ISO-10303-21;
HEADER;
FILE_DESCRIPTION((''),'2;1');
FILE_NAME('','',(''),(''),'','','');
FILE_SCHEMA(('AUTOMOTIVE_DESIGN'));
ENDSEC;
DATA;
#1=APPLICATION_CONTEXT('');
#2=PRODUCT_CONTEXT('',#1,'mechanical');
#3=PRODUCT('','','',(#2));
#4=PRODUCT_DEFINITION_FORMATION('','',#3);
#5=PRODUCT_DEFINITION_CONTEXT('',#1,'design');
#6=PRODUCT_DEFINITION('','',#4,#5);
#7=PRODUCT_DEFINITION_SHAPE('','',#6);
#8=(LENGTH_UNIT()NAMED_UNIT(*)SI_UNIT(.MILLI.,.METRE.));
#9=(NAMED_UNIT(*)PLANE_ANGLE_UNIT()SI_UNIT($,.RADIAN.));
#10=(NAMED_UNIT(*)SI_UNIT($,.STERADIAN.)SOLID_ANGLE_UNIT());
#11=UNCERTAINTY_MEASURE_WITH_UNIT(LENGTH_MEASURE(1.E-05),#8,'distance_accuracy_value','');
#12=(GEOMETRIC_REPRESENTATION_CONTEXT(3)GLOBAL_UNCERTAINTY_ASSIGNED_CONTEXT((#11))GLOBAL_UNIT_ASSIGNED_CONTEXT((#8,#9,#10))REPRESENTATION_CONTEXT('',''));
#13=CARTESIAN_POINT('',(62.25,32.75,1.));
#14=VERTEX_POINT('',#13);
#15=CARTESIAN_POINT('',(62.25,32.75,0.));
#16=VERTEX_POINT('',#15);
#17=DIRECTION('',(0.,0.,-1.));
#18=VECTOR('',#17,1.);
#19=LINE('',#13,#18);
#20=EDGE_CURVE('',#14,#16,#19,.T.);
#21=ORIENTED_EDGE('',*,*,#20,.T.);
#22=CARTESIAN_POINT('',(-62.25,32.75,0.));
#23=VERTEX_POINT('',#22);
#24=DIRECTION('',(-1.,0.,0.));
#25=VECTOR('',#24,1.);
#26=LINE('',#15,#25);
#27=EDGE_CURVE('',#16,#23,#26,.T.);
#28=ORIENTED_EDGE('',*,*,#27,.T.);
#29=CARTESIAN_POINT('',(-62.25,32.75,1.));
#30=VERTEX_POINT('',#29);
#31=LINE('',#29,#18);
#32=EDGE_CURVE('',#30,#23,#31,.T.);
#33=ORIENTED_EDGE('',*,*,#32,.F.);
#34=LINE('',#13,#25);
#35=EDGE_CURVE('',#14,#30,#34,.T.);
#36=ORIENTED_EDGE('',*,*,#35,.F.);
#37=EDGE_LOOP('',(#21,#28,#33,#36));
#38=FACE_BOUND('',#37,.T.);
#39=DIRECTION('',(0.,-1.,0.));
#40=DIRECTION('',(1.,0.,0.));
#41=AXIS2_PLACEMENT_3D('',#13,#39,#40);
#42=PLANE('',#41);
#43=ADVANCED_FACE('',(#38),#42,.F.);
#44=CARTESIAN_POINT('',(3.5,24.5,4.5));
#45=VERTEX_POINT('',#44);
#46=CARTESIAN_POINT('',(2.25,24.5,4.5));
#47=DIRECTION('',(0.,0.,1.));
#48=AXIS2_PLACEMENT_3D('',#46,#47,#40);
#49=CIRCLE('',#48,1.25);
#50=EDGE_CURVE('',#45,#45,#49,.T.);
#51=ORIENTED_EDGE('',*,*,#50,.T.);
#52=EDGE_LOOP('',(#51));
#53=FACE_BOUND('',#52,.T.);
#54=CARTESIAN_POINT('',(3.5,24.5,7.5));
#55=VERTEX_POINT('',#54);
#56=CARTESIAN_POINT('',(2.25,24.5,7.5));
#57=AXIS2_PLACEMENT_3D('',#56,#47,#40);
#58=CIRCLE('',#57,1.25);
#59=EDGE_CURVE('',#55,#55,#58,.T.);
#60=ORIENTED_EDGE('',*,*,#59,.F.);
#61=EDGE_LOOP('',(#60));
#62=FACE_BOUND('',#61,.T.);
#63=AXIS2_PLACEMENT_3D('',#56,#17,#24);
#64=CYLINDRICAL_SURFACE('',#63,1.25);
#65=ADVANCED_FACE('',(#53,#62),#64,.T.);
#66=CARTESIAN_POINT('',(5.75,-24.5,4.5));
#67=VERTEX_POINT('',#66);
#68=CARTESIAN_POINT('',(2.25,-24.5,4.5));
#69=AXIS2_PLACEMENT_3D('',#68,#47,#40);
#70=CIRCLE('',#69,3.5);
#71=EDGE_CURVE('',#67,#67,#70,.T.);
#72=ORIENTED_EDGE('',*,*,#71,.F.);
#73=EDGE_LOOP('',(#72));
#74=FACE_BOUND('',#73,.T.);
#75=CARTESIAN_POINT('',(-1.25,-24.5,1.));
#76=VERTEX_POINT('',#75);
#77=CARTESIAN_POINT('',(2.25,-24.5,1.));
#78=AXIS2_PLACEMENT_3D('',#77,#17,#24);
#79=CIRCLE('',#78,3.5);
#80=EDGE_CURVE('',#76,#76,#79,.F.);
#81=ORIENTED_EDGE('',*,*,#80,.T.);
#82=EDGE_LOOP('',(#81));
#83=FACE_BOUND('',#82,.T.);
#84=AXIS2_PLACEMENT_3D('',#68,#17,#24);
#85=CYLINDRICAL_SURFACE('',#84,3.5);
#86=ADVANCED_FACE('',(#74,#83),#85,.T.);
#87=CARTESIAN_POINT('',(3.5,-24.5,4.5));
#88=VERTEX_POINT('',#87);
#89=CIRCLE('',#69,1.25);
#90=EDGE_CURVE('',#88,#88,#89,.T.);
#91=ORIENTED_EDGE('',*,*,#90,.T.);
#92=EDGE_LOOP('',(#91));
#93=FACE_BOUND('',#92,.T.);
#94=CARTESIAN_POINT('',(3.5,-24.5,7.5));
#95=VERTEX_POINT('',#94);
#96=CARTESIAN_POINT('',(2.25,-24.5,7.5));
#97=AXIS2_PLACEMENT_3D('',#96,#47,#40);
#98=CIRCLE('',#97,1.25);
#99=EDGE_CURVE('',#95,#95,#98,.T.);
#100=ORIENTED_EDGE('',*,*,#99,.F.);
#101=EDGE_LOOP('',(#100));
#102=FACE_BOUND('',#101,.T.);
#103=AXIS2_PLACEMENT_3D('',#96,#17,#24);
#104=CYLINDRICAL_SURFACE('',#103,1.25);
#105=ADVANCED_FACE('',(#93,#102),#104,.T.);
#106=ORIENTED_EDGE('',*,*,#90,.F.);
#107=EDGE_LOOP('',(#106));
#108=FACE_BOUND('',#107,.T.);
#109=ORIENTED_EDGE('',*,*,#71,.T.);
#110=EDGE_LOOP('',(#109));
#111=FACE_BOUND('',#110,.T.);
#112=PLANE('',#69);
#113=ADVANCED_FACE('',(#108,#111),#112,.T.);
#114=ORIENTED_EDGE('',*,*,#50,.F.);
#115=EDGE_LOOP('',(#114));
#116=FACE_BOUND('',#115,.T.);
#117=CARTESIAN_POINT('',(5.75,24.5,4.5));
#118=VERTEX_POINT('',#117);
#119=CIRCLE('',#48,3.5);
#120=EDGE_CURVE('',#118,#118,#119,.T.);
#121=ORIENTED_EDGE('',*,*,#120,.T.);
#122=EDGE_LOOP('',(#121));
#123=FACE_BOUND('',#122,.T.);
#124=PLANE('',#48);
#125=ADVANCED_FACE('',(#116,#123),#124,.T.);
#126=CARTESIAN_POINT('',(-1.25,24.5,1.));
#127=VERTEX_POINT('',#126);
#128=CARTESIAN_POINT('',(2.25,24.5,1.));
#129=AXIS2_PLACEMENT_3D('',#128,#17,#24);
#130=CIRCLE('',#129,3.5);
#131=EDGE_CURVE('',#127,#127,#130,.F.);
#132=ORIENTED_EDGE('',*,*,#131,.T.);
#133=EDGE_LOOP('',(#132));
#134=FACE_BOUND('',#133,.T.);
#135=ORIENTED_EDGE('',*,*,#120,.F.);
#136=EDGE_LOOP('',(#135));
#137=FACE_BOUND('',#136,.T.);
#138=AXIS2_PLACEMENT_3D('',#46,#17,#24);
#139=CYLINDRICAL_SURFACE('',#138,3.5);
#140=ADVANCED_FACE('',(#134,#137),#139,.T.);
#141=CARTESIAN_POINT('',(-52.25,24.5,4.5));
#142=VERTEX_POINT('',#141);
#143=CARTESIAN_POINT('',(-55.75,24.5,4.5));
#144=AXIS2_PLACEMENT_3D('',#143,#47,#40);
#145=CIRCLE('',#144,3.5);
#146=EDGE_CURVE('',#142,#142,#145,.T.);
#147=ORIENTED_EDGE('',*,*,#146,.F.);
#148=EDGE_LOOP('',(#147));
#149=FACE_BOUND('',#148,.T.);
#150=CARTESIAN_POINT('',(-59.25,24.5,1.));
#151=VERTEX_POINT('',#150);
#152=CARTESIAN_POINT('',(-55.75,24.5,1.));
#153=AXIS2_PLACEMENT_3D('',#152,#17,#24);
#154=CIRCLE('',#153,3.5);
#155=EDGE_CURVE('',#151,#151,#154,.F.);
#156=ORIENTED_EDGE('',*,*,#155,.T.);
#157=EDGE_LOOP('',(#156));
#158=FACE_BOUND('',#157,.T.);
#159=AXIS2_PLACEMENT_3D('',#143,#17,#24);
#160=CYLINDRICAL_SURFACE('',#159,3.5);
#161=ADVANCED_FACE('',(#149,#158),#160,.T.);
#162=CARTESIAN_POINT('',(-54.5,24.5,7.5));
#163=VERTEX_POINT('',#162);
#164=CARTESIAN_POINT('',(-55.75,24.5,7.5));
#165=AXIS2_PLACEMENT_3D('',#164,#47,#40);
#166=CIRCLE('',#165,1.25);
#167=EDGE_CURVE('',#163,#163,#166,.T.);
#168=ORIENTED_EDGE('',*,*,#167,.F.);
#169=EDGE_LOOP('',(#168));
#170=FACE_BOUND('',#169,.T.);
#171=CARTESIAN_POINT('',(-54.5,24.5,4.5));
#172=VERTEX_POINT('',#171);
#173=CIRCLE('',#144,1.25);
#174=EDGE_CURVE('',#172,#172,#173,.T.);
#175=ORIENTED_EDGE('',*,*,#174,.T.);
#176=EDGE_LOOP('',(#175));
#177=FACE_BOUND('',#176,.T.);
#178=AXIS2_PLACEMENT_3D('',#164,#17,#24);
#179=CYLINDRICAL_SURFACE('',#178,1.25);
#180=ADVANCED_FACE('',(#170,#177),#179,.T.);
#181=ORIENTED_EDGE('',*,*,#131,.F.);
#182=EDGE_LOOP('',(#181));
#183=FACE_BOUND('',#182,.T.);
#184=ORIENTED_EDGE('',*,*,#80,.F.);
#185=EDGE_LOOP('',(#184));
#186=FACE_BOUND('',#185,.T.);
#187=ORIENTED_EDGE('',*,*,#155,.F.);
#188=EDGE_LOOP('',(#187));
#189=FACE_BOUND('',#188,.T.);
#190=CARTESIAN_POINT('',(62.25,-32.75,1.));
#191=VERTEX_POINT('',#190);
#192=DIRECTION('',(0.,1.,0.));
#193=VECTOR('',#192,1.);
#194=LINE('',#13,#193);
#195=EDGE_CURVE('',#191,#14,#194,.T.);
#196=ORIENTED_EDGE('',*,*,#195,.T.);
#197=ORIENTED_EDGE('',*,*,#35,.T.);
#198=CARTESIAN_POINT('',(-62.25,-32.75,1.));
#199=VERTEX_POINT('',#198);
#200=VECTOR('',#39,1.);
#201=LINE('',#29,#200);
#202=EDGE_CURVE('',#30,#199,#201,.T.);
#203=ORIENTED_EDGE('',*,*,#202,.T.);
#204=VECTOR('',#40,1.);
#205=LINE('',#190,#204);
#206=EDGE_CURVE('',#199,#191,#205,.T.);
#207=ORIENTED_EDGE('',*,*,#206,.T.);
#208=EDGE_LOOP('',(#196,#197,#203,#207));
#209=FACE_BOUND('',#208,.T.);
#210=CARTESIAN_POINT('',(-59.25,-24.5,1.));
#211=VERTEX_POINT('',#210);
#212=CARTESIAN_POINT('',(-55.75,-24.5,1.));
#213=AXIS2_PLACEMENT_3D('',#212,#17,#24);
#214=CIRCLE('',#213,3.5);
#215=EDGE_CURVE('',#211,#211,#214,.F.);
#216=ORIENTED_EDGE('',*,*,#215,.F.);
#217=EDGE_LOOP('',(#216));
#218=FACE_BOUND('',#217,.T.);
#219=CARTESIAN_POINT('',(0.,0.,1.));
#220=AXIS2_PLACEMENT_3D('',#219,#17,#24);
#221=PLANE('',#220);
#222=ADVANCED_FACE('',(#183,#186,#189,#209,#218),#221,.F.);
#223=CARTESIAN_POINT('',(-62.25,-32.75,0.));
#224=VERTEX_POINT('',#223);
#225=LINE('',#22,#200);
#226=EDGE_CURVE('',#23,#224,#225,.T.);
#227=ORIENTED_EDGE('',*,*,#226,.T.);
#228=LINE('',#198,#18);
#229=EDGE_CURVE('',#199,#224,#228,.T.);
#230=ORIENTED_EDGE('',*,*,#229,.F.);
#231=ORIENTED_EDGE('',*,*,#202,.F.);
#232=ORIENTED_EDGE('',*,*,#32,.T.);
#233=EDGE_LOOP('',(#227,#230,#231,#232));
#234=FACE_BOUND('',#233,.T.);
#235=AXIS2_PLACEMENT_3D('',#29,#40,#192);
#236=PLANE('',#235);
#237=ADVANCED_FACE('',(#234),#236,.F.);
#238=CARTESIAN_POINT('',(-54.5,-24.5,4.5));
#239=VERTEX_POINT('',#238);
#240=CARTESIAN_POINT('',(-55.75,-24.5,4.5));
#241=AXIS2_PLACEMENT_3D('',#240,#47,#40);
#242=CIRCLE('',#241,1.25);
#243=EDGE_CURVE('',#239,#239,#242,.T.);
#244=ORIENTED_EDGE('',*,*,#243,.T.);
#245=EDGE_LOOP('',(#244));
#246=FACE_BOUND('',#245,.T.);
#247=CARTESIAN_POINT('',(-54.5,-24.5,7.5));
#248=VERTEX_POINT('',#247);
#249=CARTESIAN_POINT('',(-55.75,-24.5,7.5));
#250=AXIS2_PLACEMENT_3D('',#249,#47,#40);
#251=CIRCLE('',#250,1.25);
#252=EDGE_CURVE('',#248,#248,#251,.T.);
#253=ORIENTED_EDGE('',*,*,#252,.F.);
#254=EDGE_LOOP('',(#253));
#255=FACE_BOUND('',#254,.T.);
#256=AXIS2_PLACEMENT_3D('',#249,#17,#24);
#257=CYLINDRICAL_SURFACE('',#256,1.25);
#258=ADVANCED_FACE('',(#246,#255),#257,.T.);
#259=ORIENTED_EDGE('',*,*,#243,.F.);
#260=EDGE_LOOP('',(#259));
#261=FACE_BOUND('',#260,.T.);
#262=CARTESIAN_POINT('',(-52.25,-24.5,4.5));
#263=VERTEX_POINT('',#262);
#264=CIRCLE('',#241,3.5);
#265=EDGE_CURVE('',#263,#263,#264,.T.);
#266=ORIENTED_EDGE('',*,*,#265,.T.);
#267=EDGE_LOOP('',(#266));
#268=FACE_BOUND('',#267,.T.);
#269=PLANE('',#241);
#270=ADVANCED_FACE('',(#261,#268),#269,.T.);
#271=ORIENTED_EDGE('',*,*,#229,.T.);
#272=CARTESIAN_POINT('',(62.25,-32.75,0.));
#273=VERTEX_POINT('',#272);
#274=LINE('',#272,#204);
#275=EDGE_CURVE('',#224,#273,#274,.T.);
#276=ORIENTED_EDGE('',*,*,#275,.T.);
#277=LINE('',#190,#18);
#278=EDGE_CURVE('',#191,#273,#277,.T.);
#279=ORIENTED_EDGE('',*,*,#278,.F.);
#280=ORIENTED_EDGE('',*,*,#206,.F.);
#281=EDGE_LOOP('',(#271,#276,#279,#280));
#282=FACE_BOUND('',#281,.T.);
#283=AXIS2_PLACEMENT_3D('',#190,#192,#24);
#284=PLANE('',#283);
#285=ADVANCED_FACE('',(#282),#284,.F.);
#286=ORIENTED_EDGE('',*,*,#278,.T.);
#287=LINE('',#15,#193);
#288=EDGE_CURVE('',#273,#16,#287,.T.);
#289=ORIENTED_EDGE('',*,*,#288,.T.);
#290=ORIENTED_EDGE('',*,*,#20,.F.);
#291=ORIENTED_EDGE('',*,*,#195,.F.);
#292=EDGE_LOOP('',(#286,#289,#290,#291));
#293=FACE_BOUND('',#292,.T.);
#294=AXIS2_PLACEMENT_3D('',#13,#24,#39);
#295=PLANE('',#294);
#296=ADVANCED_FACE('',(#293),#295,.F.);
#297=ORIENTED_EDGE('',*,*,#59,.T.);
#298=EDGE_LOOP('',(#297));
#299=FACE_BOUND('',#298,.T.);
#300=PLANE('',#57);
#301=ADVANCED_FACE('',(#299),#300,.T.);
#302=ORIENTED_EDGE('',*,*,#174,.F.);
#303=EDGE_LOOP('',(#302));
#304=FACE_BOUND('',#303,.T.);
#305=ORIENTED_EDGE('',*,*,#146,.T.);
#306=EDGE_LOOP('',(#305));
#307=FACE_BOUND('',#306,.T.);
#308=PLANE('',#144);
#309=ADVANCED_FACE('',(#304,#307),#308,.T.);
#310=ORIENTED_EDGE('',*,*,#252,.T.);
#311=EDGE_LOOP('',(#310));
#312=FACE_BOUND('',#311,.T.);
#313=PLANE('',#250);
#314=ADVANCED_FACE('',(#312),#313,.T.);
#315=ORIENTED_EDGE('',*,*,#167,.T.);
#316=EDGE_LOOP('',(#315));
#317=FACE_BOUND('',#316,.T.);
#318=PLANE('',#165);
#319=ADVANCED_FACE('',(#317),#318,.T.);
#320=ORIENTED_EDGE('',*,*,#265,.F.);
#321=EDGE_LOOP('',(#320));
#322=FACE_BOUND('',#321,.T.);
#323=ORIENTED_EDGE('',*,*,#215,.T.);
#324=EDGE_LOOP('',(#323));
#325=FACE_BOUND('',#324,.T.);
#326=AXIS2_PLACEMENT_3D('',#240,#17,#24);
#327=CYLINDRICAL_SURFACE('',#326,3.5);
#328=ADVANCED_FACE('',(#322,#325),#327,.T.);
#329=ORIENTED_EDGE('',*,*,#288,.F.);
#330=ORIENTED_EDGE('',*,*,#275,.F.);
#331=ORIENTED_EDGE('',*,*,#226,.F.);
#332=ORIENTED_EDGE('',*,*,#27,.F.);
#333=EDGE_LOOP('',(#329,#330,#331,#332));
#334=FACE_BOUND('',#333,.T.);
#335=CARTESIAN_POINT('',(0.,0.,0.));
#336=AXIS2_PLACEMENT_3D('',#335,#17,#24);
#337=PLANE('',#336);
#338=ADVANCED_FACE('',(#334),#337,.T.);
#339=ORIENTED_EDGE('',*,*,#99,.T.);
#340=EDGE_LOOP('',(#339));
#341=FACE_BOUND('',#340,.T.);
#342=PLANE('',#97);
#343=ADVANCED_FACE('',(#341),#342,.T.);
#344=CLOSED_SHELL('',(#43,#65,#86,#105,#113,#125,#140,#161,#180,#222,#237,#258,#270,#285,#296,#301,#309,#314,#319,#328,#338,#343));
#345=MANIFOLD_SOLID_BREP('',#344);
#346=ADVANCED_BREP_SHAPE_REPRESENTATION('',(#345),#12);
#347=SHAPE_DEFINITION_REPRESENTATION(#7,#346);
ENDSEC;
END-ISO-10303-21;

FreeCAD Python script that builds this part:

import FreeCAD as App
import Part
import Sketcher
Q = App.Units.Quantity

doc = App.newDocument("Part")
body = doc.addObject("PartDesign::Body", "Body")

# Sketch on XY plane
sketch1 = doc.addObject("Sketcher::SketchObject", "Sketch")
body.addObject(sketch1)
sketch1.AttachmentSupport = (doc.XY_Plane, [""])
sketch1.MapMode = "FlatFace"
sketch1.addGeometry(Part.LineSegment(App.Vector(-62, 33, 0), App.Vector(-62, -33, 0)), False)
sketch1.addGeometry(Part.LineSegment(App.Vector(-62, -33, 0), App.Vector(62, -33, 0)), False)
sketch1.addGeometry(Part.LineSegment(App.Vector(62, -33, 0), App.Vector(62, 33, 0)), False)
sketch1.addGeometry(Part.LineSegment(App.Vector(62, 33, 0), App.Vector(-62, 33, 0)), False)
sketch1.addConstraint(Sketcher.Constraint("Coincident", 0, 2, 1, 1))
sketch1.addConstraint(Sketcher.Constraint("Coincident", 1, 2, 2, 1))
sketch1.addConstraint(Sketcher.Constraint("Coincident", 2, 2, 3, 1))
sketch1.addConstraint(Sketcher.Constraint("Coincident", 3, 2, 0, 1))
sketch1.addConstraint(Sketcher.Constraint("Vertical", 0))
sketch1.addConstraint(Sketcher.Constraint("Horizontal", 1))
sketch1.addConstraint(Sketcher.Constraint("Vertical", 2))
sketch1.addConstraint(Sketcher.Constraint("Horizontal", 3))
sketch1.addConstraint(Sketcher.Constraint("Symmetric", 0, 2, 2, 2, -1, 1))
sketch1.addConstraint(Sketcher.Constraint("DistanceX", 1, 1, 1, 2, Q("124.5 mm")))
sketch1.addConstraint(Sketcher.Constraint("DistanceY", 0, 2, 0, 1, Q("65.5 mm")))
pad1 = doc.addObject("PartDesign::Pad", "Pad")
body.addObject(pad1)
pad1.Profile = sketch1
pad1.Length = 1

# Sketch on XY plane
sketch2 = doc.addObject("Sketcher::SketchObject", "Sketch001")
body.addObject(sketch2)
sketch2.AttachmentSupport = (doc.XY_Plane, [""])
sketch2.MapMode = "FlatFace"
sketch2.AttachmentOffset = App.Placement(App.Vector(0, 0, 1), App.Rotation())
sketch2.addGeometry(Part.Circle(App.Vector(-55.8, 24.5, 0), App.Vector(0, 0, 1), 3.5), False)
sketch2.addGeometry(Part.Circle(App.Vector(2.2, 24.5, 0), App.Vector(0, 0, 1), 3.5), False)
sketch2.addGeometry(Part.Circle(App.Vector(2.2, -24.5, 0), App.Vector(0, 0, 1), 3.5), False)
sketch2.addGeometry(Part.Circle(App.Vector(-55.8, -24.5, 0), App.Vector(0, 0, 1), 3.5), False)
sketch2.addConstraint(Sketcher.Constraint("Equal", 0, 1))
sketch2.addConstraint(Sketcher.Constraint("Equal", 1, 2))
sketch2.addConstraint(Sketcher.Constraint("Equal", 2, 3))
sketch2.addConstraint(Sketcher.Constraint("Symmetric", 1, 3, 2, 3, -1))
sketch2.addConstraint(Sketcher.Constraint("Symmetric", 0, 3, 3, 3, -1))
sketch2.addConstraint(Sketcher.Constraint("Horizontal", 0, 3, 1, 3))
sketch2.addConstraint(Sketcher.Constraint("Diameter", 0, Q("7 mm")))
sketch2.addConstraint(Sketcher.Constraint("DistanceX", 0, 3, 1, 3, Q("58 mm")))
sketch2.addConstraint(Sketcher.Constraint("DistanceY", 2, 3, 1, 3, Q("49 mm")))
sketch2.addConstraint(Sketcher.Constraint("DistanceX", 0, 3, -1, 1, Q("55.75 mm")))
pad2 = doc.addObject("PartDesign::Pad", "Pad001")
body.addObject(pad2)
pad2.Profile = sketch2
pad2.Length = 3.5

# Sketch on XY plane
sketch3 = doc.addObject("Sketcher::SketchObject", "Sketch002")
body.addObject(sketch3)
sketch3.AttachmentSupport = (doc.XY_Plane, [""])
sketch3.MapMode = "FlatFace"
sketch3.AttachmentOffset = App.Placement(App.Vector(0, 0, 4.5), App.Rotation())
sketch3.addGeometry(Part.Circle(App.Vector(-55.8, 24.5, 0), App.Vector(0, 0, 1), 1.2), False)
sketch3.addGeometry(Part.Circle(App.Vector(2.2, 24.5, 0), App.Vector(0, 0, 1), 1.2), False)
sketch3.addGeometry(Part.Circle(App.Vector(2.2, -24.5, 0), App.Vector(0, 0, 1), 1.2), False)
sketch3.addGeometry(Part.Circle(App.Vector(-55.8, -24.5, 0), App.Vector(0, 0, 1), 1.2), False)
sketch3.addConstraint(Sketcher.Constraint("Equal", 0, 1))
sketch3.addConstraint(Sketcher.Constraint("Equal", 1, 2))
sketch3.addConstraint(Sketcher.Constraint("Equal", 2, 3))
sketch3.addConstraint(Sketcher.Constraint("Symmetric", 1, 3, 2, 3, -1))
sketch3.addConstraint(Sketcher.Constraint("Symmetric", 0, 3, 3, 3, -1))
sketch3.addConstraint(Sketcher.Constraint("Horizontal", 0, 3, 1, 3))
sketch3.addConstraint(Sketcher.Constraint("Diameter", 0, Q("2.5 mm")))
sketch3.addConstraint(Sketcher.Constraint("DistanceX", 0, 3, 1, 3, Q("58 mm")))
sketch3.addConstraint(Sketcher.Constraint("DistanceY", 2, 3, 1, 3, Q("49 mm")))
sketch3.addConstraint(Sketcher.Constraint("DistanceX", 0, 3, -1, 1, Q("55.75 mm")))
pad3 = doc.addObject("PartDesign::Pad", "Pad002")
body.addObject(pad3)
pad3.Profile = sketch3
pad3.Length = 3

doc.recompute()
